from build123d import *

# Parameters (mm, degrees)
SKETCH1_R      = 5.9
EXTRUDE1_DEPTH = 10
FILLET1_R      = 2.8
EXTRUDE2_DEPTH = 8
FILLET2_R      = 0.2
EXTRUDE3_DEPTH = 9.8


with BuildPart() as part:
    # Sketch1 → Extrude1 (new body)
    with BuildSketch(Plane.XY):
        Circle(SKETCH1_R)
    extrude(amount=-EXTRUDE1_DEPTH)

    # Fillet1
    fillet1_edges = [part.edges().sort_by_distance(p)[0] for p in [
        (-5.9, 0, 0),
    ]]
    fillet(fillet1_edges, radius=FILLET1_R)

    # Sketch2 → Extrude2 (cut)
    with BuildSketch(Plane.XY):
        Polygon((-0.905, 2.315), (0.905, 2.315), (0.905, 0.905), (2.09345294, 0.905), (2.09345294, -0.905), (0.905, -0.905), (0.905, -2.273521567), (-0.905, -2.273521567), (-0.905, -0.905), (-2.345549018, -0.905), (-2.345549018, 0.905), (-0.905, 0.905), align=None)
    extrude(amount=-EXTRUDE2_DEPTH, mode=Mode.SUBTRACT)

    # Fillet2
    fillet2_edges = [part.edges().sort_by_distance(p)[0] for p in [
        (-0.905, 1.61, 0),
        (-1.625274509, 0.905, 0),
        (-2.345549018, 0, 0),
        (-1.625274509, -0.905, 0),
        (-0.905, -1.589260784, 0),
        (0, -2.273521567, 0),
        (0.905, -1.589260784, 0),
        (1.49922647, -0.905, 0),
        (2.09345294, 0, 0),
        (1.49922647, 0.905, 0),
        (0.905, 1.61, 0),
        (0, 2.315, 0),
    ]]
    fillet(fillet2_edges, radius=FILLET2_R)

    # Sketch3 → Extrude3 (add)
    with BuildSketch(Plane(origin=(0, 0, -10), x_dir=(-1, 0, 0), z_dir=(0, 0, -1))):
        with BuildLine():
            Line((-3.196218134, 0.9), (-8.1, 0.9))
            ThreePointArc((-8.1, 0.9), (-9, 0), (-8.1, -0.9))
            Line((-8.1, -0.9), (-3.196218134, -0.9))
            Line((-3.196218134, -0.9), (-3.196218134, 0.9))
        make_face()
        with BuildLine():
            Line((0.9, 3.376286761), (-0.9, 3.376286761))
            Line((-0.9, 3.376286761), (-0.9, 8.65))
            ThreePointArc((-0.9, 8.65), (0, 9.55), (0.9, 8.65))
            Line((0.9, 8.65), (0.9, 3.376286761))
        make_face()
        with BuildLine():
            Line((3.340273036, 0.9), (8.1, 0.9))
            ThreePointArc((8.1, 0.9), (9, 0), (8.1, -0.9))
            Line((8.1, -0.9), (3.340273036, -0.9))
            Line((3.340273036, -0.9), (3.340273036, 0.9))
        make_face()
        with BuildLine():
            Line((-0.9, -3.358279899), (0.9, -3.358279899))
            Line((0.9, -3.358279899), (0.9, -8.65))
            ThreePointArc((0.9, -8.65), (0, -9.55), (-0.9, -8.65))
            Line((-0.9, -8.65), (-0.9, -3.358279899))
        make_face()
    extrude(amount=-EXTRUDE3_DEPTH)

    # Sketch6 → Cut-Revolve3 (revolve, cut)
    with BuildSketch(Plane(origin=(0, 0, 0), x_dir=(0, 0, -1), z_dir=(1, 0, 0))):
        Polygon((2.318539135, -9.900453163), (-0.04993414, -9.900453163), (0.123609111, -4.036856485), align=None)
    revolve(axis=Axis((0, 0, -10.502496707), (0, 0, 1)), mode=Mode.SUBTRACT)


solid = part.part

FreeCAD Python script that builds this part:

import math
import FreeCAD as App
import Part
import Sketcher

V = App.Vector
Q = App.Units.Quantity


def edges_at(feature, points):
    """Names of the edges that pass closest to the given points."""
    edges = feature.Shape.Edges
    near = lambda p: min(range(len(edges)), key=lambda i: edges[i].distToShape(Part.Vertex(*p))[0])
    return sorted({f"Edge{near(p) + 1}" for p in points})


def add_polygon(sketch, points):
    """Adds a closed chain of lines whose ends are joined by coincident constraints."""
    first, n = sketch.GeometryCount, len(points)
    for a, b in zip(points, points[1:] + points[:1]):
        sketch.addGeometry(Part.LineSegment(App.Vector(*a, 0), App.Vector(*b, 0)), False)
    for i in range(n):
        sketch.addConstraint(Sketcher.Constraint("Coincident", first + i, 2, first + (i + 1) % n, 1))

doc = App.newDocument("Part")
body = doc.addObject("PartDesign::Body", "Body")

# Sketch on XY plane
sketch1 = body.newObject("Sketcher::SketchObject", "Sketch")
sketch1.AttachmentSupport = (doc.getObject("XY_Plane"), [""])
sketch1.MapMode = "FlatFace"
sketch1.addGeometry(Part.Circle(V(0, 0, 0), V(0, 0, 1), 5.9), False)
sketch1.addConstraint(Sketcher.Constraint("Coincident", 0, 3, -1, 1))
sketch1.addConstraint(Sketcher.Constraint("Diameter", 0, Q("11.8 mm")))
pad1 = body.newObject("PartDesign::Pad", "Pad")
pad1.Profile = sketch1
pad1.Length = 10
pad1.Reversed = True
doc.recompute()

fillet = body.newObject("PartDesign::Fillet", "Fillet")
fillet.Base = (pad1, edges_at(pad1, [(-5.9, 0, 0)]))
fillet.Radius = 2.8

# Sketch on XY plane
sketch2 = body.newObject("Sketcher::SketchObject", "Sketch001")
sketch2.AttachmentSupport = (doc.getObject("XY_Plane"), [""])
sketch2.MapMode = "FlatFace"
add_polygon(sketch2, [(0.905, 2.315), (-0.905, 2.315), (-0.905, 0.905), (-2.345549, 0.905), (-2.345549, -0.905), (-0.905, -0.905), (-0.905, -2.273522), (0.905, -2.273522), (0.905, -0.905), (2.093453, -0.905), (2.093453, 0.905), (0.905, 0.905)])  # lines 0-11
sketch2.addConstraint(Sketcher.Constraint("Horizontal", 0))
sketch2.addConstraint(Sketcher.Constraint("Vertical", 1))
sketch2.addConstraint(Sketcher.Constraint("Horizontal", 2))
sketch2.addConstraint(Sketcher.Constraint("Vertical", 3))
sketch2.addConstraint(Sketcher.Constraint("Horizontal", 4))
sketch2.addConstraint(Sketcher.Constraint("Vertical", 5))
sketch2.addConstraint(Sketcher.Constraint("Horizontal", 6))
sketch2.addConstraint(Sketcher.Constraint("Vertical", 7))
sketch2.addConstraint(Sketcher.Constraint("Horizontal", 8))
sketch2.addConstraint(Sketcher.Constraint("Vertical", 9))
sketch2.addConstraint(Sketcher.Constraint("Horizontal", 10))
sketch2.addConstraint(Sketcher.Constraint("Vertical", 11))
sketch2.addConstraint(Sketcher.Constraint("Symmetric", 1, 2, 7, 2, -1, 1))
sketch2.addConstraint(Sketcher.Constraint("Symmetric", 4, 2, 10, 2, -1, 1))
sketch2.addConstraint(Sketcher.Constraint("Symmetric", 4, 2, 7, 2, -2))
sketch2.addConstraint(Sketcher.Constraint("Equal", 6, 3))
sketch2.addConstraint(Sketcher.Constraint("DistanceX", 0, 2, 0, 1, Q("1.81 mm")))
sketch2.addConstraint(Sketcher.Constraint("DistanceY", 1, 2, 1, 1, Q("1.41 mm")))
sketch2.addConstraint(Sketcher.Constraint("DistanceX", 2, 2, 2, 1, Q("1.440549 mm")))
sketch2.addConstraint(Sketcher.Constraint("DistanceY", 5, 2, 5, 1, Q("1.368522 mm")))
sketch2.addConstraint(Sketcher.Constraint("DistanceX", 8, 1, 8, 2, Q("1.188453 mm")))
pocket1 = body.newObject("PartDesign::Pocket", "Pocket")
pocket1.Profile = sketch2
pocket1.Length = 8
doc.recompute()

fillet2 = body.newObject("PartDesign::Fillet", "Fillet001")
fillet2.Base = (pocket1, edges_at(pocket1, [
    (-0.905, 1.61, 0),
    (-1.625, 0.905, 0),
    (-2.346, 0, 0),
    (-1.625, -0.905, 0),
    (-0.905, -1.589, 0),
    (0, -2.274, 0),
    (0.905, -1.589, 0),
    (1.499, -0.905, 0),
    (2.093, 0, 0),
    (1.499, 0.905, 0),
    (0.905, 1.61, 0),
    (0, 2.315, 0),
]))
fillet2.Radius = 0.2

# Sketch on XY plane
sketch3 = body.newObject("Sketcher::SketchObject", "Sketch002")
sketch3.AttachmentSupport = (doc.getObject("XY_Plane"), [""])
sketch3.MapMode = "FlatFace"
sketch3.AttachmentOffset = App.Placement(V(0, 0, -10), App.Rotation())
sketch3.addGeometry(Part.LineSegment(V(3.196218, 0.9, 0), V(8.1, 0.9, 0)), False)
sketch3.addGeometry(Part.ArcOfCircle(Part.Circle(V(8.1, 0, 0), V(0, 0, 1), 0.9), math.radians(-90), math.radians(90)), False)
sketch3.addGeometry(Part.LineSegment(V(8.1, -0.9, 0), V(3.196218, -0.9, 0)), False)
sketch3.addGeometry(Part.LineSegment(V(3.196218, -0.9, 0), V(3.196218, 0.9, 0)), False)
sketch3.addGeometry(Part.LineSegment(V(0.9, 3.376287, 0), V(-0.9, 3.376287, 0)), False)
sketch3.addGeometry(Part.LineSegment(V(-0.9, 3.376287, 0), V(-0.9, 8.65, 0)), False)
sketch3.addGeometry(Part.ArcOfCircle(Part.Circle(V(0, 8.65, 0), V(0, 0, 1), 0.9), math.radians(0), math.radians(180)), False)
sketch3.addGeometry(Part.LineSegment(V(0.9, 8.65, 0), V(0.9, 3.376287, 0)), False)
sketch3.addGeometry(Part.LineSegment(V(-8.1, 0.9, 0), V(-3.340273, 0.9, 0)), False)
sketch3.addGeometry(Part.LineSegment(V(-3.340273, 0.9, 0), V(-3.340273, -0.9, 0)), False)
sketch3.addGeometry(Part.LineSegment(V(-3.340273, -0.9, 0), V(-8.1, -0.9, 0)), False)
sketch3.addGeometry(Part.ArcOfCircle(Part.Circle(V(-8.1, 0, 0), V(0, 0, 1), 0.9), math.radians(90), math.radians(270)), False)
sketch3.addGeometry(Part.LineSegment(V(-0.9, -3.35828, 0), V(0.9, -3.35828, 0)), False)
sketch3.addGeometry(Part.LineSegment(V(0.9, -3.35828, 0), V(0.9, -8.65, 0)), False)
sketch3.addGeometry(Part.ArcOfCircle(Part.Circle(V(0, -8.65, 0), V(0, 0, 1), 0.9), math.radians(180), math.radians(360)), False)
sketch3.addGeometry(Part.LineSegment(V(-0.9, -8.65, 0), V(-0.9, -3.35828, 0)), False)
sketch3.addConstraint(Sketcher.Constraint("Tangent", 0, 2, 1, 2))
sketch3.addConstraint(Sketcher.Constraint("Tangent", 1, 1, 2, 1))
sketch3.addConstraint(Sketcher.Constraint("Coincident", 2, 2, 3, 1))
sketch3.addConstraint(Sketcher.Constraint("Coincident", 3, 2, 0, 1))
sketch3.addConstraint(Sketcher.Constraint("Coincident", 4, 2, 5, 1))
sketch3.addConstraint(Sketcher.Constraint("Tangent", 5, 2, 6, 2))
sketch3.addConstraint(Sketcher.Constraint("Tangent", 6, 1, 7, 1))
sketch3.addConstraint(Sketcher.Constraint("Coincident", 7, 2, 4, 1))
sketch3.addConstraint(Sketcher.Constraint("Coincident", 8, 2, 9, 1))
sketch3.addConstraint(Sketcher.Constraint("Coincident", 9, 2, 10, 1))
sketch3.addConstraint(Sketcher.Constraint("Tangent", 10, 2, 11, 2))
sketch3.addConstraint(Sketcher.Constraint("Tangent", 11, 1, 8, 1))
sketch3.addConstraint(Sketcher.Constraint("Coincident", 12, 2, 13, 1))
sketch3.addConstraint(Sketcher.Constraint("Tangent", 13, 2, 14, 2))
sketch3.addConstraint(Sketcher.Constraint("Tangent", 14, 1, 15, 1))
sketch3.addConstraint(Sketcher.Constraint("Coincident", 15, 2, 12, 1))
sketch3.addConstraint(Sketcher.Constraint("Horizontal", 0))
sketch3.addConstraint(Sketcher.Constraint("Horizontal", 2))
sketch3.addConstraint(Sketcher.Constraint("Vertical", 3))
sketch3.addConstraint(Sketcher.Constraint("Horizontal", 4))
sketch3.addConstraint(Sketcher.Constraint("Vertical", 5))
sketch3.addConstraint(Sketcher.Constraint("Vertical", 7))
sketch3.addConstraint(Sketcher.Constraint("Horizontal", 8))
sketch3.addConstraint(Sketcher.Constraint("Vertical", 9))
sketch3.addConstraint(Sketcher.Constraint("Horizontal", 10))
sketch3.addConstraint(Sketcher.Constraint("Horizontal", 12))
sketch3.addConstraint(Sketcher.Constraint("Vertical", 13))
sketch3.addConstraint(Sketcher.Constraint("Vertical", 15))
sketch3.addConstraint(Sketcher.Constraint("Equal", 1, 6))
sketch3.addConstraint(Sketcher.Constraint("Equal", 6, 11))
sketch3.addConstraint(Sketcher.Constraint("Equal", 11, 14))
sketch3.addConstraint(Sketcher.Constraint("Symmetric", 1, 3, 11, 3, -1, 1))
sketch3.addConstraint(Sketcher.Constraint("Symmetric", 6, 3, 14, 3, -1, 1))
sketch3.addConstraint(Sketcher.Constraint("PointOnObject", 1, 3, -1))
sketch3.addConstraint(Sketcher.Constraint("PointOnObject", 6, 3, -2))
sketch3.addConstraint(Sketcher.Constraint("Radius", 1, Q("0.9 mm")))
sketch3.addConstraint(Sketcher.Constraint("DistanceX", 4, 2, 0, 2, Q("9 mm")))
sketch3.addConstraint(Sketcher.Constraint("DistanceY", 14, 3, 6, 3, Q("17.3 mm")))
sketch3.addConstraint(Sketcher.Constraint("DistanceX", 0, 1, 0, 2, Q("4.903782 mm")))
sketch3.addConstraint(Sketcher.Constraint("DistanceY", 13, 2, 13, 1, Q("5.29172 mm")))
sketch3.addConstraint(Sketcher.Constraint("DistanceX", 8, 1, 8, 2, Q("4.759727 mm")))
sketch3.addConstraint(Sketcher.Constraint("DistanceY", 5, 1, 5, 2, Q("5.273713 mm")))
pad2 = body.newObject("PartDesign::Pad", "Pad001")
pad2.Profile = sketch3
pad2.Length = 9.8

# Sketch on YZ plane
sketch4 = body.newObject("Sketcher::SketchObject", "Sketch003")
sketch4.AttachmentSupport = (doc.getObject("YZ_Plane"), [""])
sketch4.MapMode = "FlatFace"
add_polygon(sketch4, [(-9.900453, 0.049934), (-9.900453, -2.318539), (-4.036856, -0.123609)])  # lines 0-2
sketch4.addConstraint(Sketcher.Constraint("Vertical", 0))
sketch4.addConstraint(Sketcher.Constraint("Distance", 1, Q("6.260949 mm")))
sketch4.addConstraint(Sketcher.Constraint("DistanceY", 0, 2, 0, 1, Q("2.368473 mm")))
sketch4.addConstraint(Sketcher.Constraint("DistanceY", 0, 2, -1, 1, Q("2.318539 mm")))
sketch4.addConstraint(Sketcher.Constraint("DistanceY", 1, 2, -1, 1, Q("0.123609 mm")))
sketch4.addConstraint(Sketcher.Constraint("DistanceX", 0, 2, -1, 1, Q("9.900453 mm")))
groove = body.newObject("PartDesign::Groove", "Groove")
groove.Profile = sketch4
groove.ReferenceAxis = (sketch4, ["V_Axis"])
groove.Angle = 360

doc.recompute()
